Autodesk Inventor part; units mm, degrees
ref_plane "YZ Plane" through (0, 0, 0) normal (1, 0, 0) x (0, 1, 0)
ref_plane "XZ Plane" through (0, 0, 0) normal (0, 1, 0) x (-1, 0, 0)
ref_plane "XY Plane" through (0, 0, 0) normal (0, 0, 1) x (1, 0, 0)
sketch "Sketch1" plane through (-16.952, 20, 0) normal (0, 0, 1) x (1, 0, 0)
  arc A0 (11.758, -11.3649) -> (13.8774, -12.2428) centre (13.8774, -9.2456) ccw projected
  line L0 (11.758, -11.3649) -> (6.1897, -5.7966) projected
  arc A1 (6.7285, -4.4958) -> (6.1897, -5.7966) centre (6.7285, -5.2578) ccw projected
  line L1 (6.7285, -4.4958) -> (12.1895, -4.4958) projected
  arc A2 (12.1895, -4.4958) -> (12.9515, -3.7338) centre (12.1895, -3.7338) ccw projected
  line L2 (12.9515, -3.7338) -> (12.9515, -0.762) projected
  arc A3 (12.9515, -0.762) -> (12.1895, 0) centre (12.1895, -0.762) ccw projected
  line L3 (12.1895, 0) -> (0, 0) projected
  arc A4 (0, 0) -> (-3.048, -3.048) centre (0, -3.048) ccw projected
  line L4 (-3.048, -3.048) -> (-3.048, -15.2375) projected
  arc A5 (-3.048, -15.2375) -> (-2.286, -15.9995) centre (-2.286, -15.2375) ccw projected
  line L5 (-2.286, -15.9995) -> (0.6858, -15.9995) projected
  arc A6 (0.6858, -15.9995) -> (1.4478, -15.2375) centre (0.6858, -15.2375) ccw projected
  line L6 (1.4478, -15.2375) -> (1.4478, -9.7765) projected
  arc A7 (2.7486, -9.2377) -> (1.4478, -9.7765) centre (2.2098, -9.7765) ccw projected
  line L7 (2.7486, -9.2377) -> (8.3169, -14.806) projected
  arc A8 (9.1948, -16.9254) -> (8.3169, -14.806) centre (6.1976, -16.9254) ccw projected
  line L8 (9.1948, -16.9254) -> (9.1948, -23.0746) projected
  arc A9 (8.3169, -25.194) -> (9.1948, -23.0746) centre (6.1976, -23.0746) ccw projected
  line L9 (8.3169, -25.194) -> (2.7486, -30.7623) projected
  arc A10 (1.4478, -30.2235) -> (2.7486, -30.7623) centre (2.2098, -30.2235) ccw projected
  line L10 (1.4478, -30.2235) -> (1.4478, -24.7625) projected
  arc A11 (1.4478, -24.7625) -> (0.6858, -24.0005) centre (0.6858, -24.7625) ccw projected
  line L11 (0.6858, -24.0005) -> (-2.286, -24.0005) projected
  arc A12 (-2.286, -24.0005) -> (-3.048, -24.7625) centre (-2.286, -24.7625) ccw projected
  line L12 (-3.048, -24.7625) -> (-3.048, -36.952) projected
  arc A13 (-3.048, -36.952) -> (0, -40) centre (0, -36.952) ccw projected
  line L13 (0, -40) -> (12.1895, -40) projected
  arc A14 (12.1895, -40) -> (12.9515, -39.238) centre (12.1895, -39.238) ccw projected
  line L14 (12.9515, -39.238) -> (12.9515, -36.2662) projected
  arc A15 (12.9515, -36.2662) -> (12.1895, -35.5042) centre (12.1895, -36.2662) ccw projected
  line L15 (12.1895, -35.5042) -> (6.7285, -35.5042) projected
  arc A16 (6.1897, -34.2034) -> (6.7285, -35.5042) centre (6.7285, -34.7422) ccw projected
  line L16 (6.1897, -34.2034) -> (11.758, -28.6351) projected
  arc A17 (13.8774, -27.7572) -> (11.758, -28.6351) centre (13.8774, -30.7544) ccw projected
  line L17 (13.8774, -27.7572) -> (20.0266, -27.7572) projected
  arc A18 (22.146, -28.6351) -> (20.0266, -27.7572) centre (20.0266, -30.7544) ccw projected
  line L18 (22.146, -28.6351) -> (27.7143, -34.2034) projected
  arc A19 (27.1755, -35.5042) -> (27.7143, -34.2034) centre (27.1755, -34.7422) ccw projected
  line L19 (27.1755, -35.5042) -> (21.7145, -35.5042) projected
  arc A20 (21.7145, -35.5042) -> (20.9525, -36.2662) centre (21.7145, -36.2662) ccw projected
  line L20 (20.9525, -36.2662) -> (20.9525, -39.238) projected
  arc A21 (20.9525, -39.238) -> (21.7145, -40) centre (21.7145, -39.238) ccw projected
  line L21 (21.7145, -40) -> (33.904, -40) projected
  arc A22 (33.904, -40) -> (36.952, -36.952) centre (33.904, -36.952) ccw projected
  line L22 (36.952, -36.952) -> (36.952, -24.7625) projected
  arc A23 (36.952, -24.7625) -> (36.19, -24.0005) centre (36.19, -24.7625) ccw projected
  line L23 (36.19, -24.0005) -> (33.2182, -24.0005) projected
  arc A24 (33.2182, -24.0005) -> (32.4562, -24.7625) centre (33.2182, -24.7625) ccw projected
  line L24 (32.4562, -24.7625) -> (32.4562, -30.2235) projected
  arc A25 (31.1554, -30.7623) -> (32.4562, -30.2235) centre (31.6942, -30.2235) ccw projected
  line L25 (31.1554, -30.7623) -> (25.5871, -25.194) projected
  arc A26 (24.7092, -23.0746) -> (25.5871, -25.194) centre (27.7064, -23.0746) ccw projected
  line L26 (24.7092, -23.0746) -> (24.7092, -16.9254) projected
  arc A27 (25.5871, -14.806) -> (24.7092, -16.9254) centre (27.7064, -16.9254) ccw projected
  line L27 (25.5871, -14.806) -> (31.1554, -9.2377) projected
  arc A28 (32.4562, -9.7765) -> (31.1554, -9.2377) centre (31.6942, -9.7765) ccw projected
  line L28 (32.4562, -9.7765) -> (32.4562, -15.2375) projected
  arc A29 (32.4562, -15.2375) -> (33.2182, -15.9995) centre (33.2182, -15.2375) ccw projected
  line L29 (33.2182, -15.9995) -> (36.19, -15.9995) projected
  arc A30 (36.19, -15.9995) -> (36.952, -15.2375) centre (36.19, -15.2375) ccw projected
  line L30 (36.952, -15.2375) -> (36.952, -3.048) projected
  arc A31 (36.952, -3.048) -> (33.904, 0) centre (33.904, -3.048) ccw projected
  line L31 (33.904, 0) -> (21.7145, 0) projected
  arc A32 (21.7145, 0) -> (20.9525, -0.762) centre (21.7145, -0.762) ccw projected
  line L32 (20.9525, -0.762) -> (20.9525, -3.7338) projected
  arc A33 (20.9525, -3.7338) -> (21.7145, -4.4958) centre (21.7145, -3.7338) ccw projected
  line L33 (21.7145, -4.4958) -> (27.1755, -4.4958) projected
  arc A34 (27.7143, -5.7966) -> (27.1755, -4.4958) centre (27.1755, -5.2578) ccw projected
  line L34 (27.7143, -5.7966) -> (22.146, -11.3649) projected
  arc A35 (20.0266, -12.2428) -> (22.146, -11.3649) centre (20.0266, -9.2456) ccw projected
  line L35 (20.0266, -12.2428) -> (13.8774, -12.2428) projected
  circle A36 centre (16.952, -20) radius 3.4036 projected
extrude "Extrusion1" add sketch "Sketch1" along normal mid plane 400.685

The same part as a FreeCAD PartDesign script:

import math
import FreeCAD as App
import Part
import Sketcher
from FreeCAD import Vector
Q = App.Units.Quantity

doc = App.newDocument("Part")
body = doc.addObject("PartDesign::Body", "Body")

# Sketch on XY plane
sketch1 = body.newObject("Sketcher::SketchObject", "Sketch")
sketch1.AttachmentSupport = (doc.getObject("XY_Plane"), [""])
sketch1.MapMode = "FlatFace"
sketch1.addGeometry(Part.ArcOfCircle(Part.Circle(Vector(-3.1, 10.8, 0), Vector(0, 0, 1), 3), math.radians(-135), math.radians(-90)), False)
sketch1.addGeometry(Part.LineSegment(Vector(-5.2, 8.6, 0), Vector(-10.8, 14.2, 0)), False)
sketch1.addGeometry(Part.ArcOfCircle(Part.Circle(Vector(-10.2, 14.7, 0), Vector(0, 0, 1), 0.8), math.radians(90), math.radians(225)), False)
sketch1.addGeometry(Part.LineSegment(Vector(-10.2, 15.5, 0), Vector(-4.8, 15.5, 0)), False)
sketch1.addGeometry(Part.ArcOfCircle(Part.Circle(Vector(-4.8, 16.3, 0), Vector(0, 0, 1), 0.8), math.radians(-90), math.radians(0)), False)
sketch1.addGeometry(Part.LineSegment(Vector(-4, 16.3, 0), Vector(-4, 19.2, 0)), False)
sketch1.addGeometry(Part.ArcOfCircle(Part.Circle(Vector(-4.8, 19.2, 0), Vector(0, 0, 1), 0.8), math.radians(0), math.radians(90)), False)
sketch1.addGeometry(Part.LineSegment(Vector(-4.8, 20, 0), Vector(-17, 20, 0)), False)
sketch1.addGeometry(Part.ArcOfCircle(Part.Circle(Vector(-17, 17, 0), Vector(0, 0, 1), 3), math.radians(90), math.radians(180)), False)
sketch1.addGeometry(Part.LineSegment(Vector(-20, 17, 0), Vector(-20, 4.8, 0)), False)
sketch1.addGeometry(Part.ArcOfCircle(Part.Circle(Vector(-19.2, 4.8, 0), Vector(0, 0, 1), 0.8), math.radians(180), math.radians(270)), False)
sketch1.addGeometry(Part.LineSegment(Vector(-19.2, 4, 0), Vector(-16.3, 4, 0)), False)
sketch1.addGeometry(Part.ArcOfCircle(Part.Circle(Vector(-16.3, 4.8, 0), Vector(0, 0, 1), 0.8), math.radians(-90), math.radians(0)), False)
sketch1.addGeometry(Part.LineSegment(Vector(-15.5, 4.8, 0), Vector(-15.5, 10.2, 0)), False)
sketch1.addGeometry(Part.ArcOfCircle(Part.Circle(Vector(-14.7, 10.2, 0), Vector(0, 0, 1), 0.8), math.radians(45), math.radians(180)), False)
sketch1.addGeometry(Part.LineSegment(Vector(-14.2, 10.8, 0), Vector(-8.6, 5.2, 0)), False)
sketch1.addGeometry(Part.ArcOfCircle(Part.Circle(Vector(-10.8, 3.1, 0), Vector(0, 0, 1), 3), math.radians(0), math.radians(45)), False)
sketch1.addGeometry(Part.LineSegment(Vector(-7.8, 3.1, 0), Vector(-7.8, -3.1, 0)), False)
sketch1.addGeometry(Part.ArcOfCircle(Part.Circle(Vector(-10.8, -3.1, 0), Vector(0, 0, 1), 3), math.radians(-45), math.radians(0)), False)
sketch1.addGeometry(Part.LineSegment(Vector(-8.6, -5.2, 0), Vector(-14.2, -10.8, 0)), False)
sketch1.addGeometry(Part.ArcOfCircle(Part.Circle(Vector(-14.7, -10.2, 0), Vector(0, 0, 1), 0.8), math.radians(180), math.radians(315)), False)
sketch1.addGeometry(Part.LineSegment(Vector(-15.5, -10.2, 0), Vector(-15.5, -4.8, 0)), False)
sketch1.addGeometry(Part.ArcOfCircle(Part.Circle(Vector(-16.3, -4.8, 0), Vector(0, 0, 1), 0.8), math.radians(0), math.radians(90)), False)
sketch1.addGeometry(Part.LineSegment(Vector(-16.3, -4, 0), Vector(-19.2, -4, 0)), False)
sketch1.addGeometry(Part.ArcOfCircle(Part.Circle(Vector(-19.2, -4.8, 0), Vector(0, 0, 1), 0.8), math.radians(90), math.radians(180)), False)
sketch1.addGeometry(Part.LineSegment(Vector(-20, -4.8, 0), Vector(-20, -17, 0)), False)
sketch1.addGeometry(Part.ArcOfCircle(Part.Circle(Vector(-17, -17, 0), Vector(0, 0, 1), 3), math.radians(180), math.radians(270)), False)
sketch1.addGeometry(Part.LineSegment(Vector(-17, -20, 0), Vector(-4.8, -20, 0)), False)
sketch1.addGeometry(Part.ArcOfCircle(Part.Circle(Vector(-4.8, -19.2, 0), Vector(0, 0, 1), 0.8), math.radians(-90), math.radians(0)), False)
sketch1.addGeometry(Part.LineSegment(Vector(-4, -19.2, 0), Vector(-4, -16.3, 0)), False)
sketch1.addGeometry(Part.ArcOfCircle(Part.Circle(Vector(-4.8, -16.3, 0), Vector(0, 0, 1), 0.8), math.radians(0), math.radians(90)), False)
sketch1.addGeometry(Part.LineSegment(Vector(-4.8, -15.5, 0), Vector(-10.2, -15.5, 0)), False)
sketch1.addGeometry(Part.ArcOfCircle(Part.Circle(Vector(-10.2, -14.7, 0), Vector(0, 0, 1), 0.8), math.radians(135), math.radians(270)), False)
sketch1.addGeometry(Part.LineSegment(Vector(-10.8, -14.2, 0), Vector(-5.2, -8.6, 0)), False)
sketch1.addGeometry(Part.ArcOfCircle(Part.Circle(Vector(-3.1, -10.8, 0), Vector(0, 0, 1), 3), math.radians(90), math.radians(135)), False)
sketch1.addGeometry(Part.LineSegment(Vector(-3.1, -7.8, 0), Vector(3.1, -7.8, 0)), False)
sketch1.addGeometry(Part.ArcOfCircle(Part.Circle(Vector(3.1, -10.8, 0), Vector(0, 0, 1), 3), math.radians(45), math.radians(90)), False)
sketch1.addGeometry(Part.LineSegment(Vector(5.2, -8.6, 0), Vector(10.8, -14.2, 0)), False)
sketch1.addGeometry(Part.ArcOfCircle(Part.Circle(Vector(10.2, -14.7, 0), Vector(0, 0, 1), 0.8), math.radians(-90), math.radians(45)), False)
sketch1.addGeometry(Part.LineSegment(Vector(10.2, -15.5, 0), Vector(4.8, -15.5, 0)), False)
sketch1.addGeometry(Part.ArcOfCircle(Part.Circle(Vector(4.8, -16.3, 0), Vector(0, 0, 1), 0.8), math.radians(90), math.radians(180)), False)
sketch1.addGeometry(Part.LineSegment(Vector(4, -16.3, 0), Vector(4, -19.2, 0)), False)
sketch1.addGeometry(Part.ArcOfCircle(Part.Circle(Vector(4.8, -19.2, 0), Vector(0, 0, 1), 0.8), math.radians(180), math.radians(270)), False)
sketch1.addGeometry(Part.LineSegment(Vector(4.8, -20, 0), Vector(17, -20, 0)), False)
sketch1.addGeometry(Part.ArcOfCircle(Part.Circle(Vector(17, -17, 0), Vector(0, 0, 1), 3), math.radians(-90), math.radians(0)), False)
sketch1.addGeometry(Part.LineSegment(Vector(20, -17, 0), Vector(20, -4.8, 0)), False)
sketch1.addGeometry(Part.ArcOfCircle(Part.Circle(Vector(19.2, -4.8, 0), Vector(0, 0, 1), 0.8), math.radians(0), math.radians(90)), False)
sketch1.addGeometry(Part.LineSegment(Vector(19.2, -4, 0), Vector(16.3, -4, 0)), False)
sketch1.addGeometry(Part.ArcOfCircle(Part.Circle(Vector(16.3, -4.8, 0), Vector(0, 0, 1), 0.8), math.radians(90), math.radians(180)), False)
sketch1.addGeometry(Part.LineSegment(Vector(15.5, -4.8, 0), Vector(15.5, -10.2, 0)), False)
sketch1.addGeometry(Part.ArcOfCircle(Part.Circle(Vector(14.7, -10.2, 0), Vector(0, 0, 1), 0.8), math.radians(-135), math.radians(0)), False)
sketch1.addGeometry(Part.LineSegment(Vector(14.2, -10.8, 0), Vector(8.6, -5.2, 0)), False)
sketch1.addGeometry(Part.ArcOfCircle(Part.Circle(Vector(10.8, -3.1, 0), Vector(0, 0, 1), 3), math.radians(180), math.radians(225)), False)
sketch1.addGeometry(Part.LineSegment(Vector(7.8, -3.1, 0), Vector(7.8, 3.1, 0)), False)
sketch1.addGeometry(Part.ArcOfCircle(Part.Circle(Vector(10.8, 3.1, 0), Vector(0, 0, 1), 3), math.radians(135), math.radians(180)), False)
sketch1.addGeometry(Part.LineSegment(Vector(8.6, 5.2, 0), Vector(14.2, 10.8, 0)), False)
sketch1.addGeometry(Part.ArcOfCircle(Part.Circle(Vector(14.7, 10.2, 0), Vector(0, 0, 1), 0.8), math.radians(0), math.radians(135)), False)
sketch1.addGeometry(Part.LineSegment(Vector(15.5, 10.2, 0), Vector(15.5, 4.8, 0)), False)
sketch1.addGeometry(Part.ArcOfCircle(Part.Circle(Vector(16.3, 4.8, 0), Vector(0, 0, 1), 0.8), math.radians(180), math.radians(270)), False)
sketch1.addGeometry(Part.LineSegment(Vector(16.3, 4, 0), Vector(19.2, 4, 0)), False)
sketch1.addGeometry(Part.ArcOfCircle(Part.Circle(Vector(19.2, 4.8, 0), Vector(0, 0, 1), 0.8), math.radians(-90), math.radians(0)), False)
sketch1.addGeometry(Part.LineSegment(Vector(20, 4.8, 0), Vector(20, 17, 0)), False)
sketch1.addGeometry(Part.ArcOfCircle(Part.Circle(Vector(17, 17, 0), Vector(0, 0, 1), 3), math.radians(0), math.radians(90)), False)
sketch1.addGeometry(Part.LineSegment(Vector(17, 20, 0), Vector(4.8, 20, 0)), False)
sketch1.addGeometry(Part.ArcOfCircle(Part.Circle(Vector(4.8, 19.2, 0), Vector(0, 0, 1), 0.8), math.radians(90), math.radians(180)), False)
sketch1.addGeometry(Part.LineSegment(Vector(4, 19.2, 0), Vector(4, 16.3, 0)), False)
sketch1.addGeometry(Part.ArcOfCircle(Part.Circle(Vector(4.8, 16.3, 0), Vector(0, 0, 1), 0.8), math.radians(180), math.radians(270)), False)
sketch1.addGeometry(Part.LineSegment(Vector(4.8, 15.5, 0), Vector(10.2, 15.5, 0)), False)
sketch1.addGeometry(Part.ArcOfCircle(Part.Circle(Vector(10.2, 14.7, 0), Vector(0, 0, 1), 0.8), math.radians(-45), math.radians(90)), False)
sketch1.addGeometry(Part.LineSegment(Vector(10.8, 14.2, 0), Vector(5.2, 8.6, 0)), False)
sketch1.addGeometry(Part.ArcOfCircle(Part.Circle(Vector(3.1, 10.8, 0), Vector(0, 0, 1), 3), math.radians(-90), math.radians(-45)), False)
sketch1.addGeometry(Part.LineSegment(Vector(3.1, 7.8, 0), Vector(-3.1, 7.8, 0)), False)
sketch1.addGeometry(Part.Circle(Vector(0, 0, 0), Vector(0, 0, 1), 3.4), False)
sketch1.addConstraint(Sketcher.Constraint("Tangent", 0, 1, 1, 1))
sketch1.addConstraint(Sketcher.Constraint("Tangent", 1, 2, 2, 2))
sketch1.addConstraint(Sketcher.Constraint("Tangent", 2, 1, 3, 1))
sketch1.addConstraint(Sketcher.Constraint("Tangent", 3, 2, 4, 1))
sketch1.addConstraint(Sketcher.Constraint("Tangent", 4, 2, 5, 1))
sketch1.addConstraint(Sketcher.Constraint("Tangent", 5, 2, 6, 1))
sketch1.addConstraint(Sketcher.Constraint("Tangent", 6, 2, 7, 1))
sketch1.addConstraint(Sketcher.Constraint("Tangent", 7, 2, 8, 1))
sketch1.addConstraint(Sketcher.Constraint("Tangent", 8, 2, 9, 1))
sketch1.addConstraint(Sketcher.Constraint("Tangent", 9, 2, 10, 1))
sketch1.addConstraint(Sketcher.Constraint("Tangent", 10, 2, 11, 1))
sketch1.addConstraint(Sketcher.Constraint("Tangent", 11, 2, 12, 1))
sketch1.addConstraint(Sketcher.Constraint("Tangent", 12, 2, 13, 1))
sketch1.addConstraint(Sketcher.Constraint("Tangent", 13, 2, 14, 2))
sketch1.addConstraint(Sketcher.Constraint("Tangent", 14, 1, 15, 1))
sketch1.addConstraint(Sketcher.Constraint("Tangent", 15, 2, 16, 2))
sketch1.addConstraint(Sketcher.Constraint("Tangent", 16, 1, 17, 1))
sketch1.addConstraint(Sketcher.Constraint("Tangent", 17, 2, 18, 2))
sketch1.addConstraint(Sketcher.Constraint("Tangent", 18, 1, 19, 1))
sketch1.addConstraint(Sketcher.Constraint("Tangent", 19, 2, 20, 2))
sketch1.addConstraint(Sketcher.Constraint("Tangent", 20, 1, 21, 1))
sketch1.addConstraint(Sketcher.Constraint("Tangent", 21, 2, 22, 1))
sketch1.addConstraint(Sketcher.Constraint("Tangent", 22, 2, 23, 1))
sketch1.addConstraint(Sketcher.Constraint("Tangent", 23, 2, 24, 1))
sketch1.addConstraint(Sketcher.Constraint("Tangent", 24, 2, 25, 1))
sketch1.addConstraint(Sketcher.Constraint("Tangent", 25, 2, 26, 1))
sketch1.addConstraint(Sketcher.Constraint("Tangent", 26, 2, 27, 1))
sketch1.addConstraint(Sketcher.Constraint("Tangent", 27, 2, 28, 1))
sketch1.addConstraint(Sketcher.Constraint("Tangent", 28, 2, 29, 1))
sketch1.addConstraint(Sketcher.Constraint("Tangent", 29, 2, 30, 1))
sketch1.addConstraint(Sketcher.Constraint("Tangent", 30, 2, 31, 1))
sketch1.addConstraint(Sketcher.Constraint("Tangent", 31, 2, 32, 2))
sketch1.addConstraint(Sketcher.Constraint("Tangent", 32, 1, 33, 1))
sketch1.addConstraint(Sketcher.Constraint("Tangent", 33, 2, 34, 2))
sketch1.addConstraint(Sketcher.Constraint("Tangent", 34, 1, 35, 1))
sketch1.addConstraint(Sketcher.Constraint("Tangent", 35, 2, 36, 2))
sketch1.addConstraint(Sketcher.Constraint("Tangent", 36, 1, 37, 1))
sketch1.addConstraint(Sketcher.Constraint("Tangent", 37, 2, 38, 2))
sketch1.addConstraint(Sketcher.Constraint("Tangent", 38, 1, 39, 1))
sketch1.addConstraint(Sketcher.Constraint("Tangent", 39, 2, 40, 1))
sketch1.addConstraint(Sketcher.Constraint("Tangent", 40, 2, 41, 1))
sketch1.addConstraint(Sketcher.Constraint("Tangent", 41, 2, 42, 1))
sketch1.addConstraint(Sketcher.Constraint("Tangent", 42, 2, 43, 1))
sketch1.addConstraint(Sketcher.Constraint("Tangent", 43, 2, 44, 1))
sketch1.addConstraint(Sketcher.Constraint("Tangent", 44, 2, 45, 1))
sketch1.addConstraint(Sketcher.Constraint("Tangent", 45, 2, 46, 1))
sketch1.addConstraint(Sketcher.Constraint("Tangent", 46, 2, 47, 1))
sketch1.addConstraint(Sketcher.Constraint("Tangent", 47, 2, 48, 1))
sketch1.addConstraint(Sketcher.Constraint("Tangent", 48, 2, 49, 1))
sketch1.addConstraint(Sketcher.Constraint("Tangent", 49, 2, 50, 2))
sketch1.addConstraint(Sketcher.Constraint("Tangent", 50, 1, 51, 1))
sketch1.addConstraint(Sketcher.Constraint("Tangent", 51, 2, 52, 2))
sketch1.addConstraint(Sketcher.Constraint("Tangent", 52, 1, 53, 1))
sketch1.addConstraint(Sketcher.Constraint("Tangent", 53, 2, 54, 2))
sketch1.addConstraint(Sketcher.Constraint("Tangent", 54, 1, 55, 1))
sketch1.addConstraint(Sketcher.Constraint("Tangent", 55, 2, 56, 2))
sketch1.addConstraint(Sketcher.Constraint("Tangent", 56, 1, 57, 1))
sketch1.addConstraint(Sketcher.Constraint("Tangent", 57, 2, 58, 1))
sketch1.addConstraint(Sketcher.Constraint("Tangent", 58, 2, 59, 1))
sketch1.addConstraint(Sketcher.Constraint("Tangent", 59, 2, 60, 1))
sketch1.addConstraint(Sketcher.Constraint("Tangent", 60, 2, 61, 1))
sketch1.addConstraint(Sketcher.Constraint("Tangent", 61, 2, 62, 1))
sketch1.addConstraint(Sketcher.Constraint("Tangent", 62, 2, 63, 1))
sketch1.addConstraint(Sketcher.Constraint("Tangent", 63, 2, 64, 1))
sketch1.addConstraint(Sketcher.Constraint("Tangent", 64, 2, 65, 1))
sketch1.addConstraint(Sketcher.Constraint("Tangent", 65, 2, 66, 1))
sketch1.addConstraint(Sketcher.Constraint("Tangent", 66, 2, 67, 1))
sketch1.addConstraint(Sketcher.Constraint("Tangent", 67, 2, 68, 2))
sketch1.addConstraint(Sketcher.Constraint("Tangent", 68, 1, 69, 1))
sketch1.addConstraint(Sketcher.Constraint("Tangent", 69, 2, 70, 2))
sketch1.addConstraint(Sketcher.Constraint("Tangent", 70, 1, 71, 1))
sketch1.addConstraint(Sketcher.Constraint("Tangent", 71, 2, 0, 2))
sketch1.addConstraint(Sketcher.Constraint("Horizontal", 3))
sketch1.addConstraint(Sketcher.Constraint("Vertical", 5))
sketch1.addConstraint(Sketcher.Constraint("Horizontal", 7))
sketch1.addConstraint(Sketcher.Constraint("Vertical", 9))
sketch1.addConstraint(Sketcher.Constraint("Horizontal", 11))
sketch1.addConstraint(Sketcher.Constraint("Vertical", 13))
sketch1.addConstraint(Sketcher.Constraint("Vertical", 17))
sketch1.addConstraint(Sketcher.Constraint("Vertical", 21))
sketch1.addConstraint(Sketcher.Constraint("Horizontal", 23))
sketch1.addConstraint(Sketcher.Constraint("Vertical", 25))
sketch1.addConstraint(Sketcher.Constraint("Horizontal", 27))
sketch1.addConstraint(Sketcher.Constraint("Vertical", 29))
sketch1.addConstraint(Sketcher.Constraint("Horizontal", 31))
sketch1.addConstraint(Sketcher.Constraint("Horizontal", 35))
sketch1.addConstraint(Sketcher.Constraint("Horizontal", 39))
sketch1.addConstraint(Sketcher.Constraint("Vertical", 41))
sketch1.addConstraint(Sketcher.Constraint("Horizontal", 43))
sketch1.addConstraint(Sketcher.Constraint("Vertical", 45))
sketch1.addConstraint(Sketcher.Constraint("Horizontal", 47))
sketch1.addConstraint(Sketcher.Constraint("Vertical", 49))
sketch1.addConstraint(Sketcher.Constraint("Vertical", 53))
sketch1.addConstraint(Sketcher.Constraint("Vertical", 57))
sketch1.addConstraint(Sketcher.Constraint("Horizontal", 59))
sketch1.addConstraint(Sketcher.Constraint("Vertical", 61))
sketch1.addConstraint(Sketcher.Constraint("Horizontal", 63))
sketch1.addConstraint(Sketcher.Constraint("Vertical", 65))
sketch1.addConstraint(Sketcher.Constraint("Horizontal", 67))
sketch1.addConstraint(Sketcher.Constraint("Horizontal", 71))
sketch1.addConstraint(Sketcher.Constraint("Coincident", 72, 3, -1, 1))
sketch1.addConstraint(Sketcher.Constraint("Equal", 2, 4))
sketch1.addConstraint(Sketcher.Constraint("Equal", 4, 6))
sketch1.addConstraint(Sketcher.Constraint("Equal", 6, 10))
sketch1.addConstraint(Sketcher.Constraint("Equal", 10, 12))
sketch1.addConstraint(Sketcher.Constraint("Equal", 12, 14))
sketch1.addConstraint(Sketcher.Constraint("Equal", 0, 16))
sketch1.addConstraint(Sketcher.Constraint("Equal", 16, 18))
sketch1.addConstraint(Sketcher.Constraint("Equal", 14, 20))
sketch1.addConstraint(Sketcher.Constraint("Equal", 20, 22))
sketch1.addConstraint(Sketcher.Constraint("Equal", 22, 24))
sketch1.addConstraint(Sketcher.Constraint("Equal", 8, 26))
sketch1.addConstraint(Sketcher.Constraint("Equal", 24, 28))
sketch1.addConstraint(Sketcher.Constraint("Equal", 28, 30))
sketch1.addConstraint(Sketcher.Constraint("Equal", 30, 32))
sketch1.addConstraint(Sketcher.Constraint("Equal", 18, 34))
sketch1.addConstraint(Sketcher.Constraint("Equal", 34, 36))
sketch1.addConstraint(Sketcher.Constraint("Equal", 32, 38))
sketch1.addConstraint(Sketcher.Constraint("Equal", 38, 40))
sketch1.addConstraint(Sketcher.Constraint("Equal", 40, 42))
sketch1.addConstraint(Sketcher.Constraint("Equal", 26, 44))
sketch1.addConstraint(Sketcher.Constraint("Equal", 42, 46))
sketch1.addConstraint(Sketcher.Constraint("Equal", 46, 48))
sketch1.addConstraint(Sketcher.Constraint("Equal", 48, 50))
sketch1.addConstraint(Sketcher.Constraint("Equal", 36, 52))
sketch1.addConstraint(Sketcher.Constraint("Equal", 52, 54))
sketch1.addConstraint(Sketcher.Constraint("Equal", 50, 56))
sketch1.addConstraint(Sketcher.Constraint("Equal", 56, 58))
sketch1.addConstraint(Sketcher.Constraint("Equal", 58, 60))
sketch1.addConstraint(Sketcher.Constraint("Equal", 44, 62))
sketch1.addConstraint(Sketcher.Constraint("Equal", 60, 64))
sketch1.addConstraint(Sketcher.Constraint("Equal", 64, 66))
sketch1.addConstraint(Sketcher.Constraint("Equal", 66, 68))
sketch1.addConstraint(Sketcher.Constraint("Equal", 54, 70))
sketch1.addConstraint(Sketcher.Constraint("Symmetric", 0, 3, 36, 3, -1, 1))
sketch1.addConstraint(Sketcher.Constraint("Symmetric", 2, 3, 38, 3, -1, 1))
sketch1.addConstraint(Sketcher.Constraint("Symmetric", 6, 3, 42, 3, -1, 1))
sketch1.addConstraint(Sketcher.Constraint("Symmetric", 10, 3, 46, 3, -1, 1))
sketch1.addConstraint(Sketcher.Constraint("Symmetric", 14, 3, 50, 3, -1, 1))
sketch1.addConstraint(Sketcher.Constraint("Symmetric", 16, 3, 52, 3, -1, 1))
sketch1.addConstraint(Sketcher.Constraint("Symmetric", 20, 3, 56, 3, -1, 1))
sketch1.addConstraint(Sketcher.Constraint("Symmetric", 24, 3, 60, 3, -1, 1))
sketch1.addConstraint(Sketcher.Constraint("Symmetric", 28, 3, 64, 3, -1, 1))
sketch1.addConstraint(Sketcher.Constraint("Symmetric", 32, 3, 68, 3, -1, 1))
sketch1.addConstraint(Sketcher.Constraint("Symmetric", 32, 3, 38, 3, -2))
sketch1.addConstraint(Sketcher.Constraint("Symmetric", 28, 3, 42, 3, -2))
sketch1.addConstraint(Sketcher.Constraint("Symmetric", 24, 3, 46, 3, -2))
sketch1.addConstraint(Sketcher.Constraint("Symmetric", 20, 3, 50, 3, -2))
sketch1.addConstraint(Sketcher.Constraint("Parallel", 1, 15))
sketch1.addConstraint(Sketcher.Constraint("Perpendicular", 15, 19))
sketch1.addConstraint(Sketcher.Constraint("Parallel", 19, 33))
sketch1.addConstraint(Sketcher.Constraint("Perpendicular", 51, 55))
sketch1.addConstraint(Sketcher.Constraint("Parallel", 55, 69))
sketch1.addConstraint(Sketcher.Constraint("Horizontal", 18, 3, 52, 3))
sketch1.addConstraint(Sketcher.Constraint("Equal", 59, 5))
sketch1.addConstraint(Sketcher.Constraint("Equal", 63, 9))
sketch1.addConstraint(Sketcher.Constraint("Equal", 67, 13))
sketch1.addConstraint(Sketcher.Constraint("Equal", 71, 17))
sketch1.addConstraint(Sketcher.Constraint("Equal", 1, 15))
sketch1.addConstraint(Sketcher.Constraint("Radius", 2, Q("0.03 in")))
sketch1.addConstraint(Sketcher.Constraint("Radius", 8, Q("0.12 in")))
sketch1.addConstraint(Sketcher.Constraint("Diameter", 72, Q("0.268 in")))
sketch1.addConstraint(Sketcher.Constraint("Radius", 0, Q("0.118 in")))
sketch1.addConstraint(Sketcher.Constraint("DistanceX", 3, 1, 3, 2, Q("0.215 in")))
sketch1.addConstraint(Sketcher.Constraint("DistanceX", 11, 1, 11, 2, Q("0.117 in")))
sketch1.addConstraint(Sketcher.Constraint("DistanceX", 7, 2, 7, 1, Q("0.4799 in")))
sketch1.addConstraint(Sketcher.Constraint("DistanceX", 35, 1, 35, 2, Q("0.2421 in")))
sketch1.addConstraint(Sketcher.Constraint("DistanceX", 4, 3, -1, 1, Q("0.1875 in")))
pad1 = body.newObject("PartDesign::Pad", "Pad")
pad1.Profile = sketch1
pad1.Length = Q("15.775 in")
pad1.Midplane = True

doc.recompute()
